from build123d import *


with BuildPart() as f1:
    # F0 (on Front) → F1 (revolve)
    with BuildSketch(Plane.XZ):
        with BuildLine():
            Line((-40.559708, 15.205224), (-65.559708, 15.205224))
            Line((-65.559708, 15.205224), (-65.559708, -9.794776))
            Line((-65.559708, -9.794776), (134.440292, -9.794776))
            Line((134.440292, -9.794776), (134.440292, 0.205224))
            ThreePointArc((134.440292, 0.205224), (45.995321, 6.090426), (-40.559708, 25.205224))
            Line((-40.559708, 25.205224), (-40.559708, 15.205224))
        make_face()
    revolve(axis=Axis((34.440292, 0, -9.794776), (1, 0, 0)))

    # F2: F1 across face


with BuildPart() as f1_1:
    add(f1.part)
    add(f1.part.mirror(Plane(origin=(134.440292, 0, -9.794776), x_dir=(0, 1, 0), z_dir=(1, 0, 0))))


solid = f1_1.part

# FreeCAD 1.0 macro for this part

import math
import FreeCAD as App
import Part
import Sketcher

V = App.Vector
Q = App.Units.Quantity

doc = App.newDocument("Part")
params = doc.addObject("Spreadsheet::Sheet", "Params")
for row, (alias, value) in enumerate([
    ("sketch1_width", "25 mm"),
    ("sketch1_width2", "200 mm"),
    ("sketch1_height", "10 mm"),
    ("revolution_angle", "360 deg"),
], start=1):
    params.set(f"A{row}", alias)
    params.set(f"B{row}", "=" + value)
    params.setAlias(f"B{row}", alias)

body = doc.addObject("PartDesign::Body", "Body")

sketch1 = body.newObject("Sketcher::SketchObject", "Sketch")
sketch1.AttachmentSupport = (doc.getObject("XZ_Plane"), [""])
sketch1.MapMode = "FlatFace"
sketch1.addGeometry([
    Part.LineSegment(V(-40.559708, 15.205224, 0), V(-65.559708, 15.205224, 0)),
    Part.LineSegment(V(-65.559708, 15.205224, 0), V(-65.559708, -9.794776, 0)),
    Part.LineSegment(V(-65.559708, -9.794776, 0), V(134.440292, -9.794776, 0)),
    Part.LineSegment(V(134.440292, -9.794776, 0), V(134.440292, 0.205224, 0)),
    Part.ArcOfCircle(Part.Circle(V(129.142289, 588.119203, 0), V(0, 0, 1), 587.93785), math.radians(-106.776513), math.radians(-89.483691)),
    Part.LineSegment(V(-40.559708, 25.205224, 0), V(-40.559708, 15.205224, 0)),
], False)
sketch1.addGeometry(Part.LineSegment(V(-65.559708, -9.794776, 0), V(134.440292, -9.794776, 0)), True)
sketch1.addConstraint([
    Sketcher.Constraint("Coincident", 0, 2, 1, 1),
    Sketcher.Constraint("Coincident", 1, 2, 2, 1),
    Sketcher.Constraint("Coincident", 2, 2, 3, 1),
    Sketcher.Constraint("Coincident", 3, 2, 4, 2),
    Sketcher.Constraint("Coincident", 4, 1, 5, 1),
    Sketcher.Constraint("Coincident", 5, 2, 0, 1),
    Sketcher.Constraint("Horizontal", 0),
    Sketcher.Constraint("Vertical", 1),
    Sketcher.Constraint("Horizontal", 2),
    Sketcher.Constraint("Vertical", 3),
    Sketcher.Constraint("Vertical", 5),
    Sketcher.Constraint("Horizontal", 6),
    Sketcher.Constraint("Coincident", 6, 1, 1, 2),
    Sketcher.Constraint("Vertical", 3, 2, 6, 2),
    Sketcher.Constraint("Equal", 0, 1),
    Sketcher.Constraint("Equal", 3, 5),
    Sketcher.Constraint("DistanceX", 0, 2, 0, 1, Q("25 mm")),
    Sketcher.Constraint("DistanceX", 2, 1, 2, 2, Q("200 mm")),
    Sketcher.Constraint("DistanceY", 3, 1, 3, 2, Q("10 mm")),
    Sketcher.Constraint("Radius", 4, Q("587.93785 mm")),
    Sketcher.Constraint("DistanceX", -1, 1, 4, 3, Q("129.142289 mm")),
    Sketcher.Constraint("DistanceY", -1, 1, 4, 3, Q("588.119203 mm")),
])
sketch1.setExpression("Constraints[16]", "Params.sketch1_width")
sketch1.setExpression("Constraints[17]", "Params.sketch1_width2")
sketch1.setExpression("Constraints[18]", "Params.sketch1_height")
revolution = body.newObject("PartDesign::Revolution", "Revolution")
revolution.Profile = sketch1
revolution.ReferenceAxis = (sketch1, ["Axis0"])
revolution.setExpression("Angle", "Params.revolution_angle")
body2 = doc.addObject("PartDesign::Body", "Body001")
doc.recompute()

body2.BaseFeature = body
doc.recompute()

mirroring = doc.addObject("Part::Mirroring", "Mirroring")
mirroring.Source = body
mirroring.Base = V(134.440292, 0, -9.794776)
mirroring.Normal = V(1, 0, 0)
body3 = doc.addObject("PartDesign::Body", "Body002")
body3.BaseFeature = mirroring
boolean = body2.newObject("PartDesign::Boolean", "Boolean")
boolean.Type = "Fuse"
boolean.addObjects([body3])
doc.recompute()
mirroring.Visibility = False

doc.recompute()
